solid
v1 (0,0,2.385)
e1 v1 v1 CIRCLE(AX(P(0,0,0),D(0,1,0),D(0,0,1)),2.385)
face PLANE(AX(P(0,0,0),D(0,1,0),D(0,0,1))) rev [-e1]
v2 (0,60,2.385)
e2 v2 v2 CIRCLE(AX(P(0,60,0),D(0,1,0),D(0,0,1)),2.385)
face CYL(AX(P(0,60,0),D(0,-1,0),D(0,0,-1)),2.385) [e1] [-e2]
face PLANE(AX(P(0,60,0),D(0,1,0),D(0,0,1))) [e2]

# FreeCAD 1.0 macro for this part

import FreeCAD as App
import Part
import Sketcher
from FreeCAD import Vector

doc = App.newDocument("Part")
body = doc.addObject("PartDesign::Body", "Body")

# Sketch on XZ plane
sketch1 = doc.addObject("Sketcher::SketchObject", "Sketch")
body.addObject(sketch1)
sketch1.AttachmentSupport = (doc.XZ_Plane, [""])
sketch1.MapMode = "FlatFace"
sketch1.addGeometry(Part.Circle(Vector(0, 0, 0), Vector(0, 0, 1), 2.385), False)
sketch1.addConstraint(Sketcher.Constraint("Coincident", 0, 3, -1, 1))
sketch1.addConstraint(Sketcher.Constraint("Diameter", 0, 4.77))
pad1 = doc.addObject("PartDesign::Pad", "Pad")
body.addObject(pad1)
pad1.Profile = sketch1
pad1.Length = 60
pad1.Reversed = True

doc.recompute()
